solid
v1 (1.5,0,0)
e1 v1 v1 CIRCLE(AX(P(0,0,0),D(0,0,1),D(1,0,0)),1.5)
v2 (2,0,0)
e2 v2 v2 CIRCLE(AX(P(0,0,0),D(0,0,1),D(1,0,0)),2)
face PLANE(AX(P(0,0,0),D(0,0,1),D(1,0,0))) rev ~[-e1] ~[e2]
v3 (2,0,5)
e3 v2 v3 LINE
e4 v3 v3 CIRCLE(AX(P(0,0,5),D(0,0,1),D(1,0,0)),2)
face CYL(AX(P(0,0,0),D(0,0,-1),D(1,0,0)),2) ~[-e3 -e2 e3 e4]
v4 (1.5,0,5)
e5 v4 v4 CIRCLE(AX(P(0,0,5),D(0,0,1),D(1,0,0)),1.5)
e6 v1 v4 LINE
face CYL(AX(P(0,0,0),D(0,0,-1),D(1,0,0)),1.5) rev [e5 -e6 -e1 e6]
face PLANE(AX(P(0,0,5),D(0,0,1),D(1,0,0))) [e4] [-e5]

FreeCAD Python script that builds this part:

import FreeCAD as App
import Part
import Sketcher
from FreeCAD import Vector
Q = App.Units.Quantity

doc = App.newDocument("Part")
body = doc.addObject("PartDesign::Body", "Body")

# Sketch on XY plane
sketch1 = body.newObject("Sketcher::SketchObject", "Sketch")
sketch1.AttachmentSupport = (doc.getObject("XY_Plane"), [""])
sketch1.MapMode = "FlatFace"
sketch1.addGeometry([
    Part.Circle(Vector(0, 0, 0), Vector(0, 0, 1), 2),
    Part.Circle(Vector(0, 0, 0), Vector(0, 0, 1), 1.5),
], False)
sketch1.addConstraint([
    Sketcher.Constraint("Coincident", 0, 3, -1, 1),
    Sketcher.Constraint("Coincident", 1, 3, -1, 1),
    Sketcher.Constraint("Diameter", 0, Q("4 mm")),
    Sketcher.Constraint("Diameter", 1, Q("3 mm")),
])
pad1 = body.newObject("PartDesign::Pad", "Pad")
pad1.Profile = sketch1
pad1.Length = 5

doc.recompute()
